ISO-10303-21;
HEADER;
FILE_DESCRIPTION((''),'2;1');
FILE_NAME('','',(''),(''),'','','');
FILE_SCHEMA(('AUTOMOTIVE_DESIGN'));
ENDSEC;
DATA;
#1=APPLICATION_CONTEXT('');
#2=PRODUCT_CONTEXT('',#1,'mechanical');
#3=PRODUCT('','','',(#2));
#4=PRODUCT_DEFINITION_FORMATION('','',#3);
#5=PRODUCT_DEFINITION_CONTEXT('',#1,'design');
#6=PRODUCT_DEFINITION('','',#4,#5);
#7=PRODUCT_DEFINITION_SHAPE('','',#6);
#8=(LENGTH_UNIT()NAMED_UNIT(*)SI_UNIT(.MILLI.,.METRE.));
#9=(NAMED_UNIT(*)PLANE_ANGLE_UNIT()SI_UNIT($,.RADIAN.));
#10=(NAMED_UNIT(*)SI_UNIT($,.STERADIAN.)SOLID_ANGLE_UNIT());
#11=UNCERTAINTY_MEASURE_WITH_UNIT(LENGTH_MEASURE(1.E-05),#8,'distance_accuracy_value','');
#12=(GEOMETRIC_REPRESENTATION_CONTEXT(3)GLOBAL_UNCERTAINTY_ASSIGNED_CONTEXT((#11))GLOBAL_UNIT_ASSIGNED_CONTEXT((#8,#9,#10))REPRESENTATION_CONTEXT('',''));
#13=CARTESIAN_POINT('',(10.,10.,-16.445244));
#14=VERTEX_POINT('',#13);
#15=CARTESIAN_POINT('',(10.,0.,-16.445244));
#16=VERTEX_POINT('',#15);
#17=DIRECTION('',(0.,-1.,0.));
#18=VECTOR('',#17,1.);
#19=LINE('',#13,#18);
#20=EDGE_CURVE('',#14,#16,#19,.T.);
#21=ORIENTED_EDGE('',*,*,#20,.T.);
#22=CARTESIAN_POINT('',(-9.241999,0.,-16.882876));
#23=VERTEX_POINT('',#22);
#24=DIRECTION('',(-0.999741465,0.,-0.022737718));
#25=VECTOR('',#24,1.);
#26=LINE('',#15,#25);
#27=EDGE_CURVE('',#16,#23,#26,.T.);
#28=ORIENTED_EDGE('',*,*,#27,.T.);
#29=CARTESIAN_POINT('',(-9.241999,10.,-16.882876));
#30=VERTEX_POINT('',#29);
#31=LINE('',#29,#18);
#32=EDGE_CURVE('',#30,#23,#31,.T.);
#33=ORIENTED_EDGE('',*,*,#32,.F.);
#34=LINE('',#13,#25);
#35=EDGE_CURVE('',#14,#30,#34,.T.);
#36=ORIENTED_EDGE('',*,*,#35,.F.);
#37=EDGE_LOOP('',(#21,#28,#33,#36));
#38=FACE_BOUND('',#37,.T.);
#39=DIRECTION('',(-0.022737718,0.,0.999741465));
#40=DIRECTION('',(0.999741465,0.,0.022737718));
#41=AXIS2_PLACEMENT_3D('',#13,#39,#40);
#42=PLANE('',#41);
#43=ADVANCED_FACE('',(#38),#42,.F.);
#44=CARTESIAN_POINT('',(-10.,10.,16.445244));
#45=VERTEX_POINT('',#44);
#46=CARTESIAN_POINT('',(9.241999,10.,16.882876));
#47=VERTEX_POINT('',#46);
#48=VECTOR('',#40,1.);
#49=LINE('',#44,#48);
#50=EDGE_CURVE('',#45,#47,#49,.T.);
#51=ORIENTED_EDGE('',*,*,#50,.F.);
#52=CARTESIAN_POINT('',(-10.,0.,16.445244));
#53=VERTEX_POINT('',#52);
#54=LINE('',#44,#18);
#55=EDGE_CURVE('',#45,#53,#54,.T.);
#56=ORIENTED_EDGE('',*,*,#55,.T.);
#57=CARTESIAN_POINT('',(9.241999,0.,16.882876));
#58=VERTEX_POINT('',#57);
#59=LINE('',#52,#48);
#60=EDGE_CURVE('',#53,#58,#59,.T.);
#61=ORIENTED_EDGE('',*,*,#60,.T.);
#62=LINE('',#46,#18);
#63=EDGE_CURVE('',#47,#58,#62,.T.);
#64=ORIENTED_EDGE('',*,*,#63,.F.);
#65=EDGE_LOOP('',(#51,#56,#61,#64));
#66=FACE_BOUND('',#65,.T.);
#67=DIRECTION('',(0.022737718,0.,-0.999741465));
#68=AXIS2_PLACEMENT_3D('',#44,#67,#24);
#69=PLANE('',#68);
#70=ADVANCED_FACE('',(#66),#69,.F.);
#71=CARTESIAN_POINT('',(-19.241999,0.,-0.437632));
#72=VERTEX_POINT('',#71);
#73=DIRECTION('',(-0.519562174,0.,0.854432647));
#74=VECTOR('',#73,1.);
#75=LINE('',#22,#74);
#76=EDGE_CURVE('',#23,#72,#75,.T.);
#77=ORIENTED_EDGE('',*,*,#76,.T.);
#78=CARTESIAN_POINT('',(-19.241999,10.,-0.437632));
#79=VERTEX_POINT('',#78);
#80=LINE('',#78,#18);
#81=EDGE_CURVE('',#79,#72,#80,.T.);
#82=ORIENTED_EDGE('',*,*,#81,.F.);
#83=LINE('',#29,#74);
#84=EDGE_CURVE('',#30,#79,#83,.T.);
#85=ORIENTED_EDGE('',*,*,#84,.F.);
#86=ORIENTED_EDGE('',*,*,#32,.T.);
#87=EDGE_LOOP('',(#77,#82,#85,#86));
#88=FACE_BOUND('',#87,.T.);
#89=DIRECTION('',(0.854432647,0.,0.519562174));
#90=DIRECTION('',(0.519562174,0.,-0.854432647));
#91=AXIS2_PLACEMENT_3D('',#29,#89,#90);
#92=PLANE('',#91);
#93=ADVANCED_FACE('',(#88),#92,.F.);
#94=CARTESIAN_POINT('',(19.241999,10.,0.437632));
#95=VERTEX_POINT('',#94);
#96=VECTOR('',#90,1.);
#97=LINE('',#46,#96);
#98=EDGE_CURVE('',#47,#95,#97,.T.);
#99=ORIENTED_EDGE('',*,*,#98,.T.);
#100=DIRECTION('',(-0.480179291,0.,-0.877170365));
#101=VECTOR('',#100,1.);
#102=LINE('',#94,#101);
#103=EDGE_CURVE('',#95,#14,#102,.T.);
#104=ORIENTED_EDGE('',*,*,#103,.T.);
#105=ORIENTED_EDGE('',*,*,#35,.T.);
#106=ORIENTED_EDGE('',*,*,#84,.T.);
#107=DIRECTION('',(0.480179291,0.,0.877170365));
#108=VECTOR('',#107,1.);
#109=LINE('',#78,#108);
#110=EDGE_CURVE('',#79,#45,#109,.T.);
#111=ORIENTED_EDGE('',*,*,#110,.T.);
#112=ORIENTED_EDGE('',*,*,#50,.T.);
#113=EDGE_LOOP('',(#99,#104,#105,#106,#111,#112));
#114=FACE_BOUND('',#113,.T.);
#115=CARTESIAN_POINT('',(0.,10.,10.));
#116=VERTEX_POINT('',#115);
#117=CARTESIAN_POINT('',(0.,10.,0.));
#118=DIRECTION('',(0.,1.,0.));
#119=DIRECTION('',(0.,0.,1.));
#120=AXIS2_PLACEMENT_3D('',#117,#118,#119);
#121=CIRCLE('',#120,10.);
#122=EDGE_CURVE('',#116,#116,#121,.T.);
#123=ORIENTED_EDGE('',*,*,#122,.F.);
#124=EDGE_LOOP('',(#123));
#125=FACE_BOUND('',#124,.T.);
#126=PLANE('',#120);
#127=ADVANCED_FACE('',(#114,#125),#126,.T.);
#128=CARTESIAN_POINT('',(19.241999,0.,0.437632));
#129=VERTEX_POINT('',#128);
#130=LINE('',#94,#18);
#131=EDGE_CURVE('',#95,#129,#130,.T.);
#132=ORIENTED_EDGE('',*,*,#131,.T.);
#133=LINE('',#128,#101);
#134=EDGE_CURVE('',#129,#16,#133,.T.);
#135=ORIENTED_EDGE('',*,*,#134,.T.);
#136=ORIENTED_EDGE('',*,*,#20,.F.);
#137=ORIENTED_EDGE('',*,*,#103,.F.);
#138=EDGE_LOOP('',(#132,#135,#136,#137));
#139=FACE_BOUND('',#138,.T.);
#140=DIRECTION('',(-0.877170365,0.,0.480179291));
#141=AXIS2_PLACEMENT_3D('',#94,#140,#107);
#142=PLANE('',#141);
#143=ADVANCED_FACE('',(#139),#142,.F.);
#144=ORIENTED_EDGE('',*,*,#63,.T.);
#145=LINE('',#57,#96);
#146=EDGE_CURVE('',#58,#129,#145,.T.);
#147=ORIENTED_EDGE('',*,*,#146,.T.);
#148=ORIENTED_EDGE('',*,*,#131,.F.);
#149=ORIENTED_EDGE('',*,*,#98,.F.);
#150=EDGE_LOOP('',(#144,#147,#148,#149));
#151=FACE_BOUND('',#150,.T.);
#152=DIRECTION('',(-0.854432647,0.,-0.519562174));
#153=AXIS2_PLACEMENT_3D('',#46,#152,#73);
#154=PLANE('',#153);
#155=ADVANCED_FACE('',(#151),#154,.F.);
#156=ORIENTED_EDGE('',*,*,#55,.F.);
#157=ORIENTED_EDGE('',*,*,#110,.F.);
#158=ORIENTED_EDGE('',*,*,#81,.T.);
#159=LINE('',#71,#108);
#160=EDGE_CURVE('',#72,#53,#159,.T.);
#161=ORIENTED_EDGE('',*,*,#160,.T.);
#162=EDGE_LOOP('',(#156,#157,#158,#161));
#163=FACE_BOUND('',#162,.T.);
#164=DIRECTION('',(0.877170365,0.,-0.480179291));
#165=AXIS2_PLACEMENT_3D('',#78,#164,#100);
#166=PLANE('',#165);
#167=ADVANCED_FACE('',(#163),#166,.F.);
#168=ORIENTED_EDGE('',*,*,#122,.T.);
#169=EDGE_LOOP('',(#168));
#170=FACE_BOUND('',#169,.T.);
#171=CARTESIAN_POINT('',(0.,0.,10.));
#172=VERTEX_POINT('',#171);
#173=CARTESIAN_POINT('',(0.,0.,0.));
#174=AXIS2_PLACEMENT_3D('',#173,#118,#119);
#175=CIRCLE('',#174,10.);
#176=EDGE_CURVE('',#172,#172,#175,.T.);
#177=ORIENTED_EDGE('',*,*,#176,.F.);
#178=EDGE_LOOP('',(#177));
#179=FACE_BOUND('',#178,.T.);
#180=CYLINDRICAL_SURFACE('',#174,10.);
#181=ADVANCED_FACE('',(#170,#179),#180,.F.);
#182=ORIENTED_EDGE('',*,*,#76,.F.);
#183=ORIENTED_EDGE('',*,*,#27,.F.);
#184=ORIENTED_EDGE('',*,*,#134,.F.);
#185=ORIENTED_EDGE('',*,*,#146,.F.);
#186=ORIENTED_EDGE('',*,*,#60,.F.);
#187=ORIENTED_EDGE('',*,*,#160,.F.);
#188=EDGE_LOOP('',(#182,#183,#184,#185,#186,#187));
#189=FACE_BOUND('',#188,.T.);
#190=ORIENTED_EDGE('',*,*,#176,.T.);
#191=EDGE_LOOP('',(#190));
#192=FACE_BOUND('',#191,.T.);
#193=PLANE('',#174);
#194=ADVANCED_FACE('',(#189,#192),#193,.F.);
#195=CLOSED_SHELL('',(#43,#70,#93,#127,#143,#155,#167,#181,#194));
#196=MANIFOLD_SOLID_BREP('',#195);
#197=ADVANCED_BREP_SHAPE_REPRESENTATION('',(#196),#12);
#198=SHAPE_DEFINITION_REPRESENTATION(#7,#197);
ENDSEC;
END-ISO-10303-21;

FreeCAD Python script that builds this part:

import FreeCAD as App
import Part
import Sketcher
from FreeCAD import Vector


def add_polygon(sketch, points):
    """Adds a closed chain of lines whose ends are joined by coincident constraints."""
    first, n = sketch.GeometryCount, len(points)
    for a, b in zip(points, points[1:] + points[:1]):
        sketch.addGeometry(Part.LineSegment(App.Vector(*a, 0), App.Vector(*b, 0)), False)
    for i in range(n):
        sketch.addConstraint(Sketcher.Constraint("Coincident", first + i, 2, first + (i + 1) % n, 1))

doc = App.newDocument("Part")
params = doc.addObject("Spreadsheet::Sheet", "Params")
for row, (alias, value) in enumerate([
    ("pad1_length", "10 mm"),
    ("sketch2_diameter", "20 mm"),
    ("pocket1_length", "10 mm"),
], start=1):
    params.set(f"A{row}", alias)
    params.set(f"B{row}", "=" + value)
    params.setAlias(f"B{row}", alias)

body = doc.addObject("PartDesign::Body", "Body")

# Sketch on XZ plane
sketch1 = body.newObject("Sketcher::SketchObject", "Sketch")
sketch1.AttachmentSupport = (doc.getObject("XZ_Plane"), [""])
sketch1.MapMode = "FlatFace"
add_polygon(sketch1, [(-19, 0), (-10, 16), (9, 17), (19, 0), (10, -16), (-9, -17)])  # lines 0-5
sketch1.addConstraint(Sketcher.Constraint("Symmetric", 0, 2, 3, 2, -1, 1))
sketch1.addConstraint(Sketcher.Constraint("Symmetric", 1, 2, 4, 2, -1, 1))
sketch1.addConstraint(Sketcher.Constraint("Symmetric", 2, 2, 5, 2, -1, 1))
sketch1.addConstraint(Sketcher.Constraint("Equal", 0, 1))
sketch1.addConstraint(Sketcher.Constraint("Equal", 1, 2))
sketch1.addConstraint(Sketcher.Constraint("DistanceX", 0, 2, -1, 1, 10.0))
sketch1.addConstraint(Sketcher.Constraint("DistanceX", 1, 2, 2, 2, 10.0))
sketch1.addConstraint(Sketcher.Constraint("DistanceX", -1, 1, 1, 2, 9.241999))
sketch1.addConstraint(Sketcher.Constraint("DistanceY", 2, 2, 0, 2, 16.007611))
pad1 = body.newObject("PartDesign::Pad", "Pad")
pad1.Profile = sketch1
pad1.setExpression("Length", "Params.pad1_length")
pad1.Reversed = True

# Sketch on XZ plane
sketch2 = body.newObject("Sketcher::SketchObject", "Sketch001")
sketch2.AttachmentSupport = (doc.getObject("XZ_Plane"), [""])
sketch2.MapMode = "FlatFace"
sketch2.AttachmentOffset = App.Placement(Vector(0, 0, -10), App.Rotation())
sketch2.addGeometry(Part.Circle(Vector(0, 0, 0), Vector(0, 0, 1), 10), False)
sketch2.addConstraint(Sketcher.Constraint("Coincident", 0, 3, -1, 1))
sketch2.addConstraint(Sketcher.Constraint("Diameter", 0, 20.0))
sketch2.setExpression("Constraints[1]", "Params.sketch2_diameter")
pocket1 = body.newObject("PartDesign::Pocket", "Pocket")
pocket1.Profile = sketch2
pocket1.setExpression("Length", "Params.pocket1_length")
pocket1.Reversed = True

doc.recompute()
